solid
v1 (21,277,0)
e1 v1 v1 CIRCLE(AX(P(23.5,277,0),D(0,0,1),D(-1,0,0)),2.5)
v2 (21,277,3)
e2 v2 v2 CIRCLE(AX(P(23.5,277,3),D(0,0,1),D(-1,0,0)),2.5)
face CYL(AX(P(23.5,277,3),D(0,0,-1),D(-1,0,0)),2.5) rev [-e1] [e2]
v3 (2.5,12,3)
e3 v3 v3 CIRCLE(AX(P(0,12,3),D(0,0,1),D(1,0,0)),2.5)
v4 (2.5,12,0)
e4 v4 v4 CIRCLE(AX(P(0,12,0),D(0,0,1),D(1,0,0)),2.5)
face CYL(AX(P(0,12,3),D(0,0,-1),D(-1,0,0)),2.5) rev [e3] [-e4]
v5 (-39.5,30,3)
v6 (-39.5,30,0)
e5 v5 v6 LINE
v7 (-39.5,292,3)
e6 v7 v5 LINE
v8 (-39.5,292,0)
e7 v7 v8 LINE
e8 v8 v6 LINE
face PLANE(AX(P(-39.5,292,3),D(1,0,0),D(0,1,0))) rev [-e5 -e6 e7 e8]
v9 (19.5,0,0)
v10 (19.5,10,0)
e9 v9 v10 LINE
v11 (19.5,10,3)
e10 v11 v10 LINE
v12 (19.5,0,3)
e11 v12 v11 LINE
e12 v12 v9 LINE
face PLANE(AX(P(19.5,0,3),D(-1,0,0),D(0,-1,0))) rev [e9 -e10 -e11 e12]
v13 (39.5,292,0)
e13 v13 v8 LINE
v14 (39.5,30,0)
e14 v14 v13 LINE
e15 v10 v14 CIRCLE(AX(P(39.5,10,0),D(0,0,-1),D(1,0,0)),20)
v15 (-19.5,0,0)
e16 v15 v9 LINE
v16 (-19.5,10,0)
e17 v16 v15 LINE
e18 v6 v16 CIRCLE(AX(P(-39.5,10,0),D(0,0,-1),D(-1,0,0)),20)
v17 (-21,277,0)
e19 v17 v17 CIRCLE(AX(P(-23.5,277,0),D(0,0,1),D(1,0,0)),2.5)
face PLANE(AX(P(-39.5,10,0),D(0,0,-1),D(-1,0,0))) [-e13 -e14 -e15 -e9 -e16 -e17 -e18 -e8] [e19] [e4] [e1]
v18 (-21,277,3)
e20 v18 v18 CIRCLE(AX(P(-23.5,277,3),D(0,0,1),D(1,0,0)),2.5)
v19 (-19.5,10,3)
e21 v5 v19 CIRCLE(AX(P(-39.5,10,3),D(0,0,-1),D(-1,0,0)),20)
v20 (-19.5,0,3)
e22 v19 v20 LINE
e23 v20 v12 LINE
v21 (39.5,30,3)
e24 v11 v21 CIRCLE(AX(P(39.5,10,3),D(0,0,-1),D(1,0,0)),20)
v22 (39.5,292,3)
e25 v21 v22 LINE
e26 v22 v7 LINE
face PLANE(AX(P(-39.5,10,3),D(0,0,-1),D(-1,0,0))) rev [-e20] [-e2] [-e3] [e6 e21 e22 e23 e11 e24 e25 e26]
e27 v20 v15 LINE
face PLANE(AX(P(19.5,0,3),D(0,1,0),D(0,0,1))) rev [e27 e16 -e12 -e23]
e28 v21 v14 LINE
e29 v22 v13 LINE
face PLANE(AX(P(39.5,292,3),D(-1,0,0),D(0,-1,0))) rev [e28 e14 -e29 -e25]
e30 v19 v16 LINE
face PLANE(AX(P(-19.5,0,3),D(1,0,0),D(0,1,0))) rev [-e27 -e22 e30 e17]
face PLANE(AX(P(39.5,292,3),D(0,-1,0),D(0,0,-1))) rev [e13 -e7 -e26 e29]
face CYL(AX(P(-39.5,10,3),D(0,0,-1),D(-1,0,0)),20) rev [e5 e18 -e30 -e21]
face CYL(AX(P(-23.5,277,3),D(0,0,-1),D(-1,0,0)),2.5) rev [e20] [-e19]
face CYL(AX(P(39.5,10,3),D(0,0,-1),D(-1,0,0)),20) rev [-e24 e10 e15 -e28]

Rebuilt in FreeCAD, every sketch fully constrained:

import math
import FreeCAD as App
import Part
import Sketcher

V = App.Vector

doc = App.newDocument("Part")
params = doc.addObject("Spreadsheet::Sheet", "Params")
for row, (alias, value) in enumerate([
    ("sketch1_diameter", "5 mm"),
    ("sketch1_radius", "20 mm"),
    ("sketch1_width", "79 mm"),
    ("sketch1_height", "262 mm"),
    ("sketch1_height2", "10 mm"),
    ("pad1_length", "3 mm"),
], start=1):
    params.set(f"A{row}", alias)
    params.set(f"B{row}", "=" + value)
    params.setAlias(f"B{row}", alias)

body = doc.addObject("PartDesign::Body", "Body")

sketch1 = body.newObject("Sketcher::SketchObject", "Sketch")
sketch1.AttachmentSupport = (doc.getObject("XY_Plane"), [""])
sketch1.MapMode = "FlatFace"
sketch1.addGeometry([
    Part.LineSegment(V(39.5, 292, 0), V(-39.5, 292, 0)),
    Part.LineSegment(V(-39.5, 292, 0), V(-39.5, 30, 0)),
    Part.ArcOfCircle(Part.Circle(V(-39.5, 10, 0), V(0, 0, 1), 20), math.radians(0), math.radians(90)),
    Part.LineSegment(V(-19.5, 10, 0), V(-19.5, 0, 0)),
    Part.LineSegment(V(-19.5, 0, 0), V(19.5, 0, 0)),
    Part.LineSegment(V(19.5, 0, 0), V(19.5, 10, 0)),
    Part.ArcOfCircle(Part.Circle(V(39.5, 10, 0), V(0, 0, 1), 20), math.radians(90), math.radians(180)),
    Part.LineSegment(V(39.5, 30, 0), V(39.5, 292, 0)),
    Part.Circle(V(0, 12, 0), V(0, 0, 1), 2.5),
    Part.Circle(V(-23.5, 277, 0), V(0, 0, 1), 2.5),
    Part.Circle(V(23.5, 277, 0), V(0, 0, 1), 2.5),
], False)
sketch1.addConstraint([
    Sketcher.Constraint("Coincident", 0, 2, 1, 1),
    Sketcher.Constraint("Coincident", 1, 2, 2, 2),
    Sketcher.Constraint("Tangent", 2, 1, 3, 1),
    Sketcher.Constraint("Coincident", 3, 2, 4, 1),
    Sketcher.Constraint("Coincident", 4, 2, 5, 1),
    Sketcher.Constraint("Tangent", 5, 2, 6, 2),
    Sketcher.Constraint("Coincident", 6, 1, 7, 1),
    Sketcher.Constraint("Coincident", 7, 2, 0, 1),
    Sketcher.Constraint("Horizontal", 0),
    Sketcher.Constraint("Vertical", 1),
    Sketcher.Constraint("Vertical", 3),
    Sketcher.Constraint("Horizontal", 4),
    Sketcher.Constraint("Vertical", 5),
    Sketcher.Constraint("Vertical", 7),
    Sketcher.Constraint("Equal", 2, 6),
    Sketcher.Constraint("Equal", 8, 9),
    Sketcher.Constraint("Equal", 9, 10),
    Sketcher.Constraint("Symmetric", 3, 2, 4, 2, -1, 1),
    Sketcher.Constraint("Symmetric", 9, 3, 10, 3, -2),
    Sketcher.Constraint("Symmetric", 1, 2, 6, 1, -2),
    Sketcher.Constraint("PointOnObject", 8, 3, -2),
    Sketcher.Constraint("Vertical", 2, 3, 0, 2),
    Sketcher.Constraint("Diameter", 8, 5.0),
    Sketcher.Constraint("Radius", 2, 20.0),
    Sketcher.Constraint("DistanceX", 0, 2, 0, 1, 79.0),
    Sketcher.Constraint("DistanceY", 1, 2, 1, 1, 262.0),
    Sketcher.Constraint("DistanceY", 3, 2, 3, 1, 10.0),
    Sketcher.Constraint("DistanceY", -1, 1, 8, 3, 12.0),
    Sketcher.Constraint("DistanceY", -1, 1, 9, 3, 277.0),
    Sketcher.Constraint("DistanceX", 2, 3, 9, 3, 16.0),
])
sketch1.setExpression("Constraints[22]", "Params.sketch1_diameter")
sketch1.setExpression("Constraints[23]", "Params.sketch1_radius")
sketch1.setExpression("Constraints[24]", "Params.sketch1_width")
sketch1.setExpression("Constraints[25]", "Params.sketch1_height")
sketch1.setExpression("Constraints[26]", "Params.sketch1_height2")
pad1 = body.newObject("PartDesign::Pad", "Pad")
pad1.Profile = sketch1
pad1.setExpression("Length", "Params.pad1_length")

doc.recompute()
